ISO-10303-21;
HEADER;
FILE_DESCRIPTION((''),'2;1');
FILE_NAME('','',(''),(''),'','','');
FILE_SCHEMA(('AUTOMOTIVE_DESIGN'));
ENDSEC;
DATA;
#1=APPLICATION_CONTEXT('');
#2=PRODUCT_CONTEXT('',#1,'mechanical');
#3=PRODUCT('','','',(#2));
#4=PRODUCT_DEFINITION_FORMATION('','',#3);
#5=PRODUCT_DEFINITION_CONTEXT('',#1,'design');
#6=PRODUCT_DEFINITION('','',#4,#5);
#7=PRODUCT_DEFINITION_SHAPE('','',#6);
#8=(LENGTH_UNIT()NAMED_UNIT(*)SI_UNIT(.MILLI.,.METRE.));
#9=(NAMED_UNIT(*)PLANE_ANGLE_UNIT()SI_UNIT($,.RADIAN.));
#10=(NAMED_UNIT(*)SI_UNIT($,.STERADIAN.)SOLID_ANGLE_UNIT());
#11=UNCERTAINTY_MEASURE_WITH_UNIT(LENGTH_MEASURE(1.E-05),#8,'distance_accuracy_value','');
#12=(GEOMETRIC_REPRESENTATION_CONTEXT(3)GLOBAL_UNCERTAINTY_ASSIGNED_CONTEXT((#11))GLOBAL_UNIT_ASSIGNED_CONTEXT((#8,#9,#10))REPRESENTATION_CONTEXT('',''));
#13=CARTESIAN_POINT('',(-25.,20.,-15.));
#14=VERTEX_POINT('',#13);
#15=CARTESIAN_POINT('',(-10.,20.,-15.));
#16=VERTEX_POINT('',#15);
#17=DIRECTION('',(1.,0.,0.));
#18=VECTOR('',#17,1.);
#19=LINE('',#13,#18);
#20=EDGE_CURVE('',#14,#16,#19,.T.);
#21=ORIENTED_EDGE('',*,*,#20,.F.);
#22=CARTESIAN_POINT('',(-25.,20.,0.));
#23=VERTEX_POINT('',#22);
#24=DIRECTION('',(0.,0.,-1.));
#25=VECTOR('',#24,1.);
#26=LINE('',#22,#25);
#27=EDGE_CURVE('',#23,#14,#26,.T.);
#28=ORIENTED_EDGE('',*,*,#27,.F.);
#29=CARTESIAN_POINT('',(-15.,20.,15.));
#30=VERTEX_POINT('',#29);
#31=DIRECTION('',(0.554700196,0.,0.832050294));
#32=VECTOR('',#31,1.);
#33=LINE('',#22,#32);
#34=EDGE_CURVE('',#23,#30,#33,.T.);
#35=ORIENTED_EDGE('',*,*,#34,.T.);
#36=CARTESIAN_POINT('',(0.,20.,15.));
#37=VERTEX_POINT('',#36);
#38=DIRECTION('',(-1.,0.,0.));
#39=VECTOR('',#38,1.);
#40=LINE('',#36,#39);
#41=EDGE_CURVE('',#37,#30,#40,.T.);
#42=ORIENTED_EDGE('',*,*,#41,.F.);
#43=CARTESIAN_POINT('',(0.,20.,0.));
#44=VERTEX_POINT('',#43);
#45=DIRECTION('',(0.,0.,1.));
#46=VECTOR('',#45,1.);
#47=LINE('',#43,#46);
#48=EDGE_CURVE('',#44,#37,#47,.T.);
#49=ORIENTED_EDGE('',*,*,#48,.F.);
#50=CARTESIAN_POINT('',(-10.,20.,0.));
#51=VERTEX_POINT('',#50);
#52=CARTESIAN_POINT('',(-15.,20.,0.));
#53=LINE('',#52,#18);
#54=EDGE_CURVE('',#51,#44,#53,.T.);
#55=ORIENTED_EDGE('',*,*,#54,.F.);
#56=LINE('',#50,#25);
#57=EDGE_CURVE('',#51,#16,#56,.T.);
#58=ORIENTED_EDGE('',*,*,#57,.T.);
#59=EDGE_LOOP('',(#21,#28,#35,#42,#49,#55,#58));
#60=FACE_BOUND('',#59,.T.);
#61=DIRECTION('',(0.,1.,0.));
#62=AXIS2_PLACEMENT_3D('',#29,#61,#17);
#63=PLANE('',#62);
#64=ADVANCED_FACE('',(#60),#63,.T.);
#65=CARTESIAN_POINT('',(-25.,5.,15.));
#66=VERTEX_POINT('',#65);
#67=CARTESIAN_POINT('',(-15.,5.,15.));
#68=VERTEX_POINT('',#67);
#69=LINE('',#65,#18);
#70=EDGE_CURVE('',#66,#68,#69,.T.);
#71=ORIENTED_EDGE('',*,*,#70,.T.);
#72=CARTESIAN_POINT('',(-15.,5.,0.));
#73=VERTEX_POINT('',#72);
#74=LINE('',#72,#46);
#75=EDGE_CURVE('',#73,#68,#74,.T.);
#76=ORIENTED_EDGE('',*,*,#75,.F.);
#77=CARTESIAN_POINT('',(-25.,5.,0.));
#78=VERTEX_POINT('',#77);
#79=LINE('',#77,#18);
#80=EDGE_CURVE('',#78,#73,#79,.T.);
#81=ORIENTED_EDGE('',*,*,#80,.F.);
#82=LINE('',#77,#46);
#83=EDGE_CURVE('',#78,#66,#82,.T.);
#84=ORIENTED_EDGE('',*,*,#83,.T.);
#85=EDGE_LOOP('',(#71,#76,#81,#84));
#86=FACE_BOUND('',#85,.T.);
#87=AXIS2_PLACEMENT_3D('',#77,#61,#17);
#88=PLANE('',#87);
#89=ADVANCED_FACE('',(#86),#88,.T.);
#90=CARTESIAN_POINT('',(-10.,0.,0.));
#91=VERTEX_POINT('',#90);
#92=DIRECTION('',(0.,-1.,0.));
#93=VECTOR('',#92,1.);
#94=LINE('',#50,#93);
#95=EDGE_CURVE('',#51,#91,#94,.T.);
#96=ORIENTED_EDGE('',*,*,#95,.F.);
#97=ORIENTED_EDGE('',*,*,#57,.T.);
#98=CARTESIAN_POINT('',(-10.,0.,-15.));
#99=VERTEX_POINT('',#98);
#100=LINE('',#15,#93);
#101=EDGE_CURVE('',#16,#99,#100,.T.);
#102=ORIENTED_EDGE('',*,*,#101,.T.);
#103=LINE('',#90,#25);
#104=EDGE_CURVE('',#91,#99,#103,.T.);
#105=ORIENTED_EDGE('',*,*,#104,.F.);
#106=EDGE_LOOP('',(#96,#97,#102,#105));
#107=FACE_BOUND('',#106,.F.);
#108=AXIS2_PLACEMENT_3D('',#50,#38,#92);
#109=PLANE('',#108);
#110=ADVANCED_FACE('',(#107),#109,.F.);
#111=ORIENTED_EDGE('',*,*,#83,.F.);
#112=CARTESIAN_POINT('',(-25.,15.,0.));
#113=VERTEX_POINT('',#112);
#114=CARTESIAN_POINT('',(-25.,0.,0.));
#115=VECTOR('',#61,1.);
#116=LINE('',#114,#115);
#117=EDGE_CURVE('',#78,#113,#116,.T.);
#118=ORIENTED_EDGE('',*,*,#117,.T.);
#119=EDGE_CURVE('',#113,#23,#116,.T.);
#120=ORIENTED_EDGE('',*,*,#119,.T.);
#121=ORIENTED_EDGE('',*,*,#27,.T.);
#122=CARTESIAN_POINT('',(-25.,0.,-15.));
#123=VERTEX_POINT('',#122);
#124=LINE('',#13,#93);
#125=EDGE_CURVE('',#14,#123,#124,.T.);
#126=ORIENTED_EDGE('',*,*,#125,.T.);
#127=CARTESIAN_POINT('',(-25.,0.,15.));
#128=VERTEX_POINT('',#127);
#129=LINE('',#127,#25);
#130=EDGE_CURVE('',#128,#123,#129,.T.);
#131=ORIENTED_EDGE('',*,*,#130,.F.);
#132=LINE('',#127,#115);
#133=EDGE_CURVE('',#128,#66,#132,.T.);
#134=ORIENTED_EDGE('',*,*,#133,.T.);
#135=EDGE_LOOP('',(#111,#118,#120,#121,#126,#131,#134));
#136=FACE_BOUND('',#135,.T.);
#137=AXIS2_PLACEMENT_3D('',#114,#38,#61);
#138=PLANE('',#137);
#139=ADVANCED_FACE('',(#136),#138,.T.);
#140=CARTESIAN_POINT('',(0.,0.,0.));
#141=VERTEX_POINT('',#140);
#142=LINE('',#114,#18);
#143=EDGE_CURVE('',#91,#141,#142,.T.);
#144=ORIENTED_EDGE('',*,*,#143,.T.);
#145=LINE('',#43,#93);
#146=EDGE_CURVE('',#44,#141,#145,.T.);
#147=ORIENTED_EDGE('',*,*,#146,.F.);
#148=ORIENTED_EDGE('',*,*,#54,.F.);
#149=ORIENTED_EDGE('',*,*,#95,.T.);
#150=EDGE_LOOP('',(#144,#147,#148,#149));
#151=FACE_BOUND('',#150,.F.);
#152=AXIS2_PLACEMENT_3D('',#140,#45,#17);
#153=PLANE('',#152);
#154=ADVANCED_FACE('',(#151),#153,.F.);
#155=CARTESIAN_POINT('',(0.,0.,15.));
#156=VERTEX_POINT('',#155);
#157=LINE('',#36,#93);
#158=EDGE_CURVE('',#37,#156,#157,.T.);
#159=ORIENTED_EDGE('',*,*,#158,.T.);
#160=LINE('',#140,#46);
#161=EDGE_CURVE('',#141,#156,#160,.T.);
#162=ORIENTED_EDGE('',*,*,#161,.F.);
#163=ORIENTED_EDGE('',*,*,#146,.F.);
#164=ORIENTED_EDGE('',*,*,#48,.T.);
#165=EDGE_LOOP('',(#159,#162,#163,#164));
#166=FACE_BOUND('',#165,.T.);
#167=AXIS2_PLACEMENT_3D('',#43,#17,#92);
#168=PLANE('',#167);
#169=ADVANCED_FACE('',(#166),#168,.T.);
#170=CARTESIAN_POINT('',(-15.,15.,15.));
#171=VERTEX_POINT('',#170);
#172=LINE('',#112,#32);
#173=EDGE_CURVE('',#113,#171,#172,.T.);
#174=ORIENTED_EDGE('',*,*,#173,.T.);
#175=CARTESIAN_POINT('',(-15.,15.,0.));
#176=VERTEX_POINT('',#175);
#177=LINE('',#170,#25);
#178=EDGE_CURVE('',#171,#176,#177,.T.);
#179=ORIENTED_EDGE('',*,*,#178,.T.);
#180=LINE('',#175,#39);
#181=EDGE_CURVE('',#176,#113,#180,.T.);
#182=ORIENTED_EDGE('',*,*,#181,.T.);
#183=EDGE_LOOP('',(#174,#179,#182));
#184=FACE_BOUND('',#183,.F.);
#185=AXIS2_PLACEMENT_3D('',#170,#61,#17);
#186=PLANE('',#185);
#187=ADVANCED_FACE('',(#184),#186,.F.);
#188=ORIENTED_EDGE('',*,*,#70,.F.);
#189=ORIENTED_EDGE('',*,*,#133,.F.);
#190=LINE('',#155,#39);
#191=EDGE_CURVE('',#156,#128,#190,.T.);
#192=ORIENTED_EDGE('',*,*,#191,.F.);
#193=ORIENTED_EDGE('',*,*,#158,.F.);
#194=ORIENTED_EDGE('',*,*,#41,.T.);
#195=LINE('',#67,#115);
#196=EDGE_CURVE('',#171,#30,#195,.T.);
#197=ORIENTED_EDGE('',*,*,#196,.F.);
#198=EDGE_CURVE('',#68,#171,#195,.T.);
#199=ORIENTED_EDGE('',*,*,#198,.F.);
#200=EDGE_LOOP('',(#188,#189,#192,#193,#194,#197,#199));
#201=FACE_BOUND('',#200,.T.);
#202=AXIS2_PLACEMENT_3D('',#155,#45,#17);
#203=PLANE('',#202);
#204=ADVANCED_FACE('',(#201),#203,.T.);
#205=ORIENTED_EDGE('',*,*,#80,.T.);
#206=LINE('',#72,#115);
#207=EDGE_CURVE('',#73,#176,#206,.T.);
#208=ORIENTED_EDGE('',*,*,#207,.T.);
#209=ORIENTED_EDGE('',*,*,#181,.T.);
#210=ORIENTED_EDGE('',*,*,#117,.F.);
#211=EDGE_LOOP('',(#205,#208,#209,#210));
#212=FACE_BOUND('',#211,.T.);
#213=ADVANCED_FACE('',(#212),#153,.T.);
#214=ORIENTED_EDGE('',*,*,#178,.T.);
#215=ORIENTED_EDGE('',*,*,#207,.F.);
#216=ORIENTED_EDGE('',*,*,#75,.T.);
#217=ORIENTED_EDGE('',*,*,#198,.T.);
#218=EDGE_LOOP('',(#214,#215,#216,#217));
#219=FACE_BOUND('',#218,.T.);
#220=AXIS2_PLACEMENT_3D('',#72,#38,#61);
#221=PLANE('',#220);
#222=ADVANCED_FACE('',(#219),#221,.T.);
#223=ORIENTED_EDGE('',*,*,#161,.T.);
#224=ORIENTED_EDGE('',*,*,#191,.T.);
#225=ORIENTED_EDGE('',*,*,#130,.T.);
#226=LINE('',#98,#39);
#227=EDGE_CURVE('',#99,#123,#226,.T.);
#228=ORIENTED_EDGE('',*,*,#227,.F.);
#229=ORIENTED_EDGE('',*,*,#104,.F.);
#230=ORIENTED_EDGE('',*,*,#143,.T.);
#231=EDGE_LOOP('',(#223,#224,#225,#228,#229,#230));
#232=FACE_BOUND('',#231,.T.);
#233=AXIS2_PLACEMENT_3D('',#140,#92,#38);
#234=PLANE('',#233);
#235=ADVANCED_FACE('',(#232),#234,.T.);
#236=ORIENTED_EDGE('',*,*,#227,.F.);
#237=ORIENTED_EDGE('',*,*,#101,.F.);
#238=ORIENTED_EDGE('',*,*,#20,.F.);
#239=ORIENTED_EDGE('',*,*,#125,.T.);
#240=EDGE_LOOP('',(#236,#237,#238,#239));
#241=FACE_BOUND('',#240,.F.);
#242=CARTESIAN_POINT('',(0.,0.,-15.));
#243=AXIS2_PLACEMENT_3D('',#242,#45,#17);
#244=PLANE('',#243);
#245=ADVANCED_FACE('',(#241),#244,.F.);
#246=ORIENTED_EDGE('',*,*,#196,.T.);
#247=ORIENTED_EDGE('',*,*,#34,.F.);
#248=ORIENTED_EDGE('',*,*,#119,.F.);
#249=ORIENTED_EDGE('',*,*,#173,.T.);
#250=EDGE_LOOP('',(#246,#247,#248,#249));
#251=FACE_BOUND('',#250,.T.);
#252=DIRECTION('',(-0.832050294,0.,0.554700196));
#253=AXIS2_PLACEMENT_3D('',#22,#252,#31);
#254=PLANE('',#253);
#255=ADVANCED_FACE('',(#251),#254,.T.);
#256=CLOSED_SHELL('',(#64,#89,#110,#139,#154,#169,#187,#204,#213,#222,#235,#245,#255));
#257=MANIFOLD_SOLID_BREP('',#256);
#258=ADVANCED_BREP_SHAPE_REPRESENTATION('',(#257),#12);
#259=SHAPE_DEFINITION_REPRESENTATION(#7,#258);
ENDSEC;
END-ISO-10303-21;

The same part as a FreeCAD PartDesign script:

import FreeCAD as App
import Part
import Sketcher

doc = App.newDocument("Part")
body = doc.addObject("PartDesign::Body", "Body")

# Sketch on XY plane
sketch1 = body.newObject("Sketcher::SketchObject", "Sketch")
sketch1.AttachmentSupport = (doc.getObject("XY_Plane"), [""])
sketch1.MapMode = "FlatFace"
sketch1.addGeometry([
    Part.LineSegment(App.Vector(0, 0, 0), App.Vector(0, 20, 0)),  # 0
    Part.LineSegment(App.Vector(0, 20, 0), App.Vector(-15, 20, 0)),  # 1
    Part.LineSegment(App.Vector(-15, 20, 0), App.Vector(-15, 5, 0)),  # 2
    Part.LineSegment(App.Vector(-15, 5, 0), App.Vector(-25, 5, 0)),  # 3
    Part.LineSegment(App.Vector(-25, 5, 0), App.Vector(-25, 0, 0)),  # 4
    Part.LineSegment(App.Vector(-25, 0, 0), App.Vector(0, 0, 0)),  # 5
], False)
sketch1.addConstraint([
    Sketcher.Constraint("Coincident", 0, 2, 1, 1),
    Sketcher.Constraint("Coincident", 1, 2, 2, 1),
    Sketcher.Constraint("Coincident", 2, 2, 3, 1),
    Sketcher.Constraint("Coincident", 3, 2, 4, 1),
    Sketcher.Constraint("Coincident", 4, 2, 5, 1),
    Sketcher.Constraint("Coincident", 5, 2, 0, 1),
    Sketcher.Constraint("Vertical", 0),
    Sketcher.Constraint("Horizontal", 1),
    Sketcher.Constraint("Vertical", 2),
    Sketcher.Constraint("Horizontal", 3),
    Sketcher.Constraint("Vertical", 4),
    Sketcher.Constraint("Horizontal", 5),
    Sketcher.Constraint("Coincident", 5, 2, -1, 1),
    Sketcher.Constraint("Equal", 1, 2),
    Sketcher.Constraint("DistanceX", 1, 2, 1, 1, 15.0),
    Sketcher.Constraint("DistanceX", 3, 2, 3, 1, 10.0),
    Sketcher.Constraint("DistanceY", 4, 2, 4, 1, 5.0),
])
pad1 = body.newObject("PartDesign::Pad", "Pad")
pad1.Profile = sketch1
pad1.Length = 15

# Sketch on XY plane
sketch2 = body.newObject("Sketcher::SketchObject", "Sketch001")
sketch2.AttachmentSupport = (doc.getObject("XY_Plane"), [""])
sketch2.MapMode = "FlatFace"
sketch2.addGeometry([
    Part.LineSegment(App.Vector(-25, 0, 0), App.Vector(-10, 0, 0)),
    Part.LineSegment(App.Vector(-10, 0, 0), App.Vector(-10, 20, 0)),
    Part.LineSegment(App.Vector(-10, 20, 0), App.Vector(-25, 20, 0)),
    Part.LineSegment(App.Vector(-25, 20, 0), App.Vector(-25, 0, 0)),
], False)
sketch2.addConstraint([
    Sketcher.Constraint("Coincident", 0, 2, 1, 1),
    Sketcher.Constraint("Coincident", 1, 2, 2, 1),
    Sketcher.Constraint("Coincident", 2, 2, 3, 1),
    Sketcher.Constraint("Coincident", 3, 2, 0, 1),
    Sketcher.Constraint("Horizontal", 0),
    Sketcher.Constraint("Vertical", 1),
    Sketcher.Constraint("Horizontal", 2),
    Sketcher.Constraint("Vertical", 3),
    Sketcher.Constraint("PointOnObject", 0, 2, -1),
    Sketcher.Constraint("DistanceX", 0, 1, 0, 2, 15.0),
    Sketcher.Constraint("DistanceX", 0, 2, -1, 1, 10.0),
    Sketcher.Constraint("DistanceY", 1, 1, 1, 2, 20.0),
])
pad2 = body.newObject("PartDesign::Pad", "Pad001")
pad2.Profile = sketch2
pad2.Length = 15
pad2.Reversed = True

# Sketch on XZ plane
sketch3 = body.newObject("Sketcher::SketchObject", "Sketch002")
sketch3.AttachmentSupport = (doc.getObject("XZ_Plane"), [""])
sketch3.MapMode = "FlatFace"
sketch3.AttachmentOffset = App.Placement(App.Vector(0, 0, -20), App.Rotation())
sketch3.addGeometry([
    Part.LineSegment(App.Vector(-15, 15, 0), App.Vector(-15, 0, 0)),
    Part.LineSegment(App.Vector(-15, 0, 0), App.Vector(-25, 0, 0)),
    Part.LineSegment(App.Vector(-25, 0, 0), App.Vector(-15, 15, 0)),
], False)
sketch3.addConstraint([
    Sketcher.Constraint("Coincident", 0, 2, 1, 1),
    Sketcher.Constraint("Coincident", 1, 2, 2, 1),
    Sketcher.Constraint("Coincident", 2, 2, 0, 1),
    Sketcher.Constraint("Vertical", 0),
    Sketcher.Constraint("Horizontal", 1),
    Sketcher.Constraint("PointOnObject", 0, 2, -1),
    Sketcher.Constraint("DistanceX", 1, 2, 1, 1, 10.0),
    Sketcher.Constraint("DistanceY", 0, 2, 0, 1, 15.0),
    Sketcher.Constraint("DistanceX", 0, 2, -1, 1, 15.0),
])
pad3 = body.newObject("PartDesign::Pad", "Pad002")
pad3.Profile = sketch3
pad3.Length = 5

doc.recompute()
